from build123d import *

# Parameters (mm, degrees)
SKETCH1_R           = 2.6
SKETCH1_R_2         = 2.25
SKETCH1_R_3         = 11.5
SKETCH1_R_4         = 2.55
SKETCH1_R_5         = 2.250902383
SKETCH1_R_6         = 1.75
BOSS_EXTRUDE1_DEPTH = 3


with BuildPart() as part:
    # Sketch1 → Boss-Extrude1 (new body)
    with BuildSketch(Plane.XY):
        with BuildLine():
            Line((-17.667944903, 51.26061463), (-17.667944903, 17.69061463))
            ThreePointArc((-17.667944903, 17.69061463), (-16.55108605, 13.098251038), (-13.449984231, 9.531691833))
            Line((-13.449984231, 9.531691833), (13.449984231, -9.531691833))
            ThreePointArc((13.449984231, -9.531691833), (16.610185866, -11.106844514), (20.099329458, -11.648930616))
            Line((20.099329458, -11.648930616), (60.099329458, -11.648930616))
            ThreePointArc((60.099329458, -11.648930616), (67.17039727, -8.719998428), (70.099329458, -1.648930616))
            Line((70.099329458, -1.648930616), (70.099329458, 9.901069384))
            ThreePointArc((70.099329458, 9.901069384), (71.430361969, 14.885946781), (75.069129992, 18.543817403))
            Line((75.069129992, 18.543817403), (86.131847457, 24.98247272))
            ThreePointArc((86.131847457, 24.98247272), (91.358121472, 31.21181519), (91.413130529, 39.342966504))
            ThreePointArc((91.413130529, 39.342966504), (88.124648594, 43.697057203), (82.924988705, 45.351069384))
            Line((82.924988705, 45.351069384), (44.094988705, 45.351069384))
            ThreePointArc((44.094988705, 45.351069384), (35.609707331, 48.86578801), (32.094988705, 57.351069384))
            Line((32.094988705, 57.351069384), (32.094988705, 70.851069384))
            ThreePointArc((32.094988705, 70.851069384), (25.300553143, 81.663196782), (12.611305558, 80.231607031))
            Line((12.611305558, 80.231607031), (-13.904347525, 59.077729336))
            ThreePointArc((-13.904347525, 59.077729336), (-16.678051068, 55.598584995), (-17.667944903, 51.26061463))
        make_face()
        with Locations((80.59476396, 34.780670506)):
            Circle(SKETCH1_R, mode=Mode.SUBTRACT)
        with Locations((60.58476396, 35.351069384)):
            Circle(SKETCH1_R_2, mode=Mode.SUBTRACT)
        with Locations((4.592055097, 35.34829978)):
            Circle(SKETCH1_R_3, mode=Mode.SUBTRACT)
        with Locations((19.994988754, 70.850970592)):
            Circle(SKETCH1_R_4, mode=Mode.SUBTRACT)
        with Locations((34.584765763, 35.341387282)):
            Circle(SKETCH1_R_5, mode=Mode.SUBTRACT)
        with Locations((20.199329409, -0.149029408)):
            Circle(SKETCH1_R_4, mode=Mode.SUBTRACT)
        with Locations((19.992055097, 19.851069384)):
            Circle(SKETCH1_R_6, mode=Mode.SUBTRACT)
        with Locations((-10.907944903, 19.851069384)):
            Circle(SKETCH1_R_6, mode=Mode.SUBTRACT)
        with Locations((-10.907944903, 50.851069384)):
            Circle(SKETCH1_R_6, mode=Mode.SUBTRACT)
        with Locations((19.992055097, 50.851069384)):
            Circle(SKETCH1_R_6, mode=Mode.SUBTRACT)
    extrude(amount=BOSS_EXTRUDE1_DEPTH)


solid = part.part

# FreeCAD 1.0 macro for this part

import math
import FreeCAD as App
import Part
import Sketcher
Q = App.Units.Quantity

doc = App.newDocument("Part")
params = doc.addObject("Spreadsheet::Sheet", "Params")
for row, (alias, value) in enumerate([
    ("sketch1_diameter", "23 mm"),
    ("sketch1_radius", "10 mm"),
    ("sketch1_radius2", "12 mm"),
    ("sketch1_radius3", "9 mm"),
    ("sketch1_diameter2", "5.1 mm"),
    ("pad1_length", "3 mm"),
], start=1):
    params.set(f"A{row}", alias)
    params.set(f"B{row}", "=" + value)
    params.setAlias(f"B{row}", alias)

body = doc.addObject("PartDesign::Body", "Body")

# Sketch on XY plane
sketch1 = doc.addObject("Sketcher::SketchObject", "Sketch")
body.addObject(sketch1)
sketch1.AttachmentSupport = (doc.XY_Plane, [""])
sketch1.MapMode = "FlatFace"
sketch1.addGeometry([
    Part.LineSegment(App.Vector(-17.7, 51.3, 0), App.Vector(-17.7, 17.7, 0)),  # 0
    Part.ArcOfCircle(Part.Circle(App.Vector(-7.7, 17.7, 0), App.Vector(0, 0, 1), 10), math.radians(180), math.radians(235)),  # 1
    Part.LineSegment(App.Vector(-13.4, 9.5, 0), App.Vector(13.4, -9.5, 0)),  # 2
    Part.ArcOfCircle(Part.Circle(App.Vector(20.1, -0.1, 0), App.Vector(0, 0, 1), 11.5), math.radians(-125), math.radians(-90)),  # 3
    Part.LineSegment(App.Vector(20.1, -11.6, 0), App.Vector(60.1, -11.6, 0)),  # 4
    Part.ArcOfCircle(Part.Circle(App.Vector(60.1, -1.6, 0), App.Vector(0, 0, 1), 10), math.radians(-90), math.radians(0)),  # 5
    Part.LineSegment(App.Vector(70.1, -1.6, 0), App.Vector(70.1, 9.9, 0)),  # 6
    Part.ArcOfCircle(Part.Circle(App.Vector(80.1, 9.9, 0), App.Vector(0, 0, 1), 10), math.radians(120), math.radians(180)),  # 7
    Part.LineSegment(App.Vector(75.1, 18.5, 0), App.Vector(86.1, 25, 0)),  # 8
    Part.ArcOfCircle(Part.Circle(App.Vector(80.1, 35.4, 0), App.Vector(0, 0, 1), 12), math.radians(-60), math.radians(19)),  # 9
    Part.ArcOfCircle(Part.Circle(App.Vector(82.9, 36.4, 0), App.Vector(0, 0, 1), 9), math.radians(19), math.radians(90)),  # 10
    Part.LineSegment(App.Vector(82.9, 45.4, 0), App.Vector(44.1, 45.4, 0)),  # 11
    Part.ArcOfCircle(Part.Circle(App.Vector(44.1, 57.4, 0), App.Vector(0, 0, 1), 12), math.radians(-180), math.radians(-90)),  # 12
    Part.LineSegment(App.Vector(32.1, 57.4, 0), App.Vector(32.1, 70.9, 0)),  # 13
    Part.ArcOfCircle(Part.Circle(App.Vector(20.1, 70.9, 0), App.Vector(0, 0, 1), 12), math.radians(0), math.radians(129)),  # 14
    Part.LineSegment(App.Vector(12.6, 80.2, 0), App.Vector(-13.9, 59.1, 0)),  # 15
    Part.ArcOfCircle(Part.Circle(App.Vector(-7.7, 51.3, 0), App.Vector(0, 0, 1), 10), math.radians(129), math.radians(180)),  # 16
    Part.Circle(App.Vector(20.2, -0.1, 0), App.Vector(0, 0, 1), 2.5),  # 17
    Part.Circle(App.Vector(-10.9, 19.9, 0), App.Vector(0, 0, 1), 1.8),  # 18
    Part.Circle(App.Vector(4.6, 35.3, 0), App.Vector(0, 0, 1), 11.5),  # 19
    Part.Circle(App.Vector(20, 19.9, 0), App.Vector(0, 0, 1), 1.8),  # 20
    Part.Circle(App.Vector(34.6, 35.3, 0), App.Vector(0, 0, 1), 2.3),  # 21
    Part.Circle(App.Vector(80.6, 34.8, 0), App.Vector(0, 0, 1), 2.6),  # 22
    Part.Circle(App.Vector(-10.9, 50.9, 0), App.Vector(0, 0, 1), 1.8),  # 23
    Part.Circle(App.Vector(20, 50.9, 0), App.Vector(0, 0, 1), 1.8),  # 24
    Part.Circle(App.Vector(20, 70.9, 0), App.Vector(0, 0, 1), 2.5),  # 25
    Part.Circle(App.Vector(60.6, 35.4, 0), App.Vector(0, 0, 1), 2.2),  # 26
], False)
sketch1.addConstraint([
    Sketcher.Constraint("Tangent", 0, 2, 1, 1),
    Sketcher.Constraint("Tangent", 1, 2, 2, 1),
    Sketcher.Constraint("Tangent", 2, 2, 3, 1),
    Sketcher.Constraint("Tangent", 3, 2, 4, 1),
    Sketcher.Constraint("Tangent", 4, 2, 5, 1),
    Sketcher.Constraint("Tangent", 5, 2, 6, 1),
    Sketcher.Constraint("Tangent", 6, 2, 7, 2),
    Sketcher.Constraint("Tangent", 7, 1, 8, 1),
    Sketcher.Constraint("Tangent", 8, 2, 9, 1),
    Sketcher.Constraint("Tangent", 9, 2, 10, 1),
    Sketcher.Constraint("Tangent", 10, 2, 11, 1),
    Sketcher.Constraint("Tangent", 11, 2, 12, 2),
    Sketcher.Constraint("Tangent", 12, 1, 13, 1),
    Sketcher.Constraint("Tangent", 13, 2, 14, 1),
    Sketcher.Constraint("Tangent", 14, 2, 15, 1),
    Sketcher.Constraint("Tangent", 15, 2, 16, 1),
    Sketcher.Constraint("Tangent", 16, 2, 0, 1),
    Sketcher.Constraint("Vertical", 0),
    Sketcher.Constraint("Horizontal", 4),
    Sketcher.Constraint("Vertical", 6),
    Sketcher.Constraint("Horizontal", 11),
    Sketcher.Constraint("Vertical", 13),
    Sketcher.Constraint("Equal", 1, 5),
    Sketcher.Constraint("Equal", 5, 7),
    Sketcher.Constraint("Equal", 9, 12),
    Sketcher.Constraint("Equal", 12, 14),
    Sketcher.Constraint("Equal", 7, 16),
    Sketcher.Constraint("Equal", 3, 19),
    Sketcher.Constraint("Equal", 18, 20),
    Sketcher.Constraint("Equal", 20, 23),
    Sketcher.Constraint("Equal", 23, 24),
    Sketcher.Constraint("Equal", 17, 25),
    Sketcher.Constraint("Symmetric", 1, 2, 2, 2, -1, 1),
    Sketcher.Constraint("Horizontal", 18, 3, 20, 3),
    Sketcher.Constraint("Horizontal", 23, 3, 24, 3),
    Sketcher.Constraint("Vertical", 18, 3, 23, 3),
    Sketcher.Constraint("Vertical", 20, 3, 24, 3),
    Sketcher.Constraint("Diameter", 19, Q("23 mm")),
    Sketcher.Constraint("Radius", 1, Q("10 mm")),
    Sketcher.Constraint("Radius", 9, Q("12 mm")),
    Sketcher.Constraint("Radius", 10, Q("9 mm")),
    Sketcher.Constraint("Diameter", 17, Q("5.1 mm")),
    Sketcher.Constraint("Diameter", 18, Q("3.5 mm")),
    Sketcher.Constraint("Diameter", 22, Q("5.2 mm")),
    Sketcher.Constraint("Diameter", 26, Q("4.5 mm")),
    Sketcher.Constraint("DistanceX", 4, 1, 4, 2, Q("40 mm")),
    Sketcher.Constraint("DistanceY", 13, 1, 13, 2, Q("13.5 mm")),
    Sketcher.Constraint("Angle", 8, Q("30.2 deg")),
    Sketcher.Constraint("DistanceY", 5, 3, 10, 3, Q("38 mm")),
    Sketcher.Constraint("DistanceY", 3, 3, 18, 3, Q("20 mm")),
    Sketcher.Constraint("DistanceY", 18, 3, 23, 3, Q("31 mm")),
    Sketcher.Constraint("DistanceY", 26, 3, 10, 3, Q("1 mm")),
    Sketcher.Constraint("DistanceX", 21, 3, 26, 3, Q("25.999998 mm")),
    Sketcher.Constraint("Distance", 8, Q("12.8 mm")),
    Sketcher.Constraint("DistanceX", 11, 2, 11, 1, Q("38.83 mm")),
    Sketcher.Constraint("DistanceY", 0, 2, 0, 1, Q("33.57 mm")),
    Sketcher.Constraint("DistanceY", 6, 1, 6, 2, Q("11.55 mm")),
    Sketcher.Constraint("DistanceX", 3, 3, 17, 3, Q("0.1 mm")),
    Sketcher.Constraint("DistanceX", 18, 3, 19, 3, Q("15.5 mm")),
    Sketcher.Constraint("DistanceX", 19, 3, 20, 3, Q("15.4 mm")),
    Sketcher.Constraint("DistanceX", 25, 3, 14, 3, Q("0.1 mm")),
    Sketcher.Constraint("Distance", 2, Q("32.97 mm")),
    Sketcher.Constraint("Distance", 15, Q("33.92 mm")),
    Sketcher.Constraint("DistanceX", 18, 3, 1, 3, Q("3.24 mm")),
    Sketcher.Constraint("DistanceX", 26, 3, 22, 3, Q("20.01 mm")),
    Sketcher.Constraint("Diameter", 21, Q("4.501805 mm")),
    Sketcher.Constraint("DistanceY", -1, 1, 19, 3, Q("35.3483 mm")),
    Sketcher.Constraint("DistanceY", 5, 3, 17, 3, Q("1.499901 mm")),
    Sketcher.Constraint("DistanceY", 22, 3, 9, 3, Q("0.5731 mm")),
    Sketcher.Constraint("DistanceY", 24, 3, 25, 3, Q("19.999901 mm")),
    Sketcher.Constraint("DistanceX", 20, 3, 21, 3, Q("14.592711 mm")),
    Sketcher.Constraint("DistanceY", -1, 1, 21, 3, Q("35.341387 mm")),
])
sketch1.setExpression("Constraints[37]", "Params.sketch1_diameter")
sketch1.setExpression("Constraints[38]", "Params.sketch1_radius")
sketch1.setExpression("Constraints[39]", "Params.sketch1_radius2")
sketch1.setExpression("Constraints[40]", "Params.sketch1_radius3")
sketch1.setExpression("Constraints[41]", "Params.sketch1_diameter2")
pad1 = doc.addObject("PartDesign::Pad", "Pad")
body.addObject(pad1)
pad1.Profile = sketch1
pad1.setExpression("Length", "Params.pad1_length")

doc.recompute()
